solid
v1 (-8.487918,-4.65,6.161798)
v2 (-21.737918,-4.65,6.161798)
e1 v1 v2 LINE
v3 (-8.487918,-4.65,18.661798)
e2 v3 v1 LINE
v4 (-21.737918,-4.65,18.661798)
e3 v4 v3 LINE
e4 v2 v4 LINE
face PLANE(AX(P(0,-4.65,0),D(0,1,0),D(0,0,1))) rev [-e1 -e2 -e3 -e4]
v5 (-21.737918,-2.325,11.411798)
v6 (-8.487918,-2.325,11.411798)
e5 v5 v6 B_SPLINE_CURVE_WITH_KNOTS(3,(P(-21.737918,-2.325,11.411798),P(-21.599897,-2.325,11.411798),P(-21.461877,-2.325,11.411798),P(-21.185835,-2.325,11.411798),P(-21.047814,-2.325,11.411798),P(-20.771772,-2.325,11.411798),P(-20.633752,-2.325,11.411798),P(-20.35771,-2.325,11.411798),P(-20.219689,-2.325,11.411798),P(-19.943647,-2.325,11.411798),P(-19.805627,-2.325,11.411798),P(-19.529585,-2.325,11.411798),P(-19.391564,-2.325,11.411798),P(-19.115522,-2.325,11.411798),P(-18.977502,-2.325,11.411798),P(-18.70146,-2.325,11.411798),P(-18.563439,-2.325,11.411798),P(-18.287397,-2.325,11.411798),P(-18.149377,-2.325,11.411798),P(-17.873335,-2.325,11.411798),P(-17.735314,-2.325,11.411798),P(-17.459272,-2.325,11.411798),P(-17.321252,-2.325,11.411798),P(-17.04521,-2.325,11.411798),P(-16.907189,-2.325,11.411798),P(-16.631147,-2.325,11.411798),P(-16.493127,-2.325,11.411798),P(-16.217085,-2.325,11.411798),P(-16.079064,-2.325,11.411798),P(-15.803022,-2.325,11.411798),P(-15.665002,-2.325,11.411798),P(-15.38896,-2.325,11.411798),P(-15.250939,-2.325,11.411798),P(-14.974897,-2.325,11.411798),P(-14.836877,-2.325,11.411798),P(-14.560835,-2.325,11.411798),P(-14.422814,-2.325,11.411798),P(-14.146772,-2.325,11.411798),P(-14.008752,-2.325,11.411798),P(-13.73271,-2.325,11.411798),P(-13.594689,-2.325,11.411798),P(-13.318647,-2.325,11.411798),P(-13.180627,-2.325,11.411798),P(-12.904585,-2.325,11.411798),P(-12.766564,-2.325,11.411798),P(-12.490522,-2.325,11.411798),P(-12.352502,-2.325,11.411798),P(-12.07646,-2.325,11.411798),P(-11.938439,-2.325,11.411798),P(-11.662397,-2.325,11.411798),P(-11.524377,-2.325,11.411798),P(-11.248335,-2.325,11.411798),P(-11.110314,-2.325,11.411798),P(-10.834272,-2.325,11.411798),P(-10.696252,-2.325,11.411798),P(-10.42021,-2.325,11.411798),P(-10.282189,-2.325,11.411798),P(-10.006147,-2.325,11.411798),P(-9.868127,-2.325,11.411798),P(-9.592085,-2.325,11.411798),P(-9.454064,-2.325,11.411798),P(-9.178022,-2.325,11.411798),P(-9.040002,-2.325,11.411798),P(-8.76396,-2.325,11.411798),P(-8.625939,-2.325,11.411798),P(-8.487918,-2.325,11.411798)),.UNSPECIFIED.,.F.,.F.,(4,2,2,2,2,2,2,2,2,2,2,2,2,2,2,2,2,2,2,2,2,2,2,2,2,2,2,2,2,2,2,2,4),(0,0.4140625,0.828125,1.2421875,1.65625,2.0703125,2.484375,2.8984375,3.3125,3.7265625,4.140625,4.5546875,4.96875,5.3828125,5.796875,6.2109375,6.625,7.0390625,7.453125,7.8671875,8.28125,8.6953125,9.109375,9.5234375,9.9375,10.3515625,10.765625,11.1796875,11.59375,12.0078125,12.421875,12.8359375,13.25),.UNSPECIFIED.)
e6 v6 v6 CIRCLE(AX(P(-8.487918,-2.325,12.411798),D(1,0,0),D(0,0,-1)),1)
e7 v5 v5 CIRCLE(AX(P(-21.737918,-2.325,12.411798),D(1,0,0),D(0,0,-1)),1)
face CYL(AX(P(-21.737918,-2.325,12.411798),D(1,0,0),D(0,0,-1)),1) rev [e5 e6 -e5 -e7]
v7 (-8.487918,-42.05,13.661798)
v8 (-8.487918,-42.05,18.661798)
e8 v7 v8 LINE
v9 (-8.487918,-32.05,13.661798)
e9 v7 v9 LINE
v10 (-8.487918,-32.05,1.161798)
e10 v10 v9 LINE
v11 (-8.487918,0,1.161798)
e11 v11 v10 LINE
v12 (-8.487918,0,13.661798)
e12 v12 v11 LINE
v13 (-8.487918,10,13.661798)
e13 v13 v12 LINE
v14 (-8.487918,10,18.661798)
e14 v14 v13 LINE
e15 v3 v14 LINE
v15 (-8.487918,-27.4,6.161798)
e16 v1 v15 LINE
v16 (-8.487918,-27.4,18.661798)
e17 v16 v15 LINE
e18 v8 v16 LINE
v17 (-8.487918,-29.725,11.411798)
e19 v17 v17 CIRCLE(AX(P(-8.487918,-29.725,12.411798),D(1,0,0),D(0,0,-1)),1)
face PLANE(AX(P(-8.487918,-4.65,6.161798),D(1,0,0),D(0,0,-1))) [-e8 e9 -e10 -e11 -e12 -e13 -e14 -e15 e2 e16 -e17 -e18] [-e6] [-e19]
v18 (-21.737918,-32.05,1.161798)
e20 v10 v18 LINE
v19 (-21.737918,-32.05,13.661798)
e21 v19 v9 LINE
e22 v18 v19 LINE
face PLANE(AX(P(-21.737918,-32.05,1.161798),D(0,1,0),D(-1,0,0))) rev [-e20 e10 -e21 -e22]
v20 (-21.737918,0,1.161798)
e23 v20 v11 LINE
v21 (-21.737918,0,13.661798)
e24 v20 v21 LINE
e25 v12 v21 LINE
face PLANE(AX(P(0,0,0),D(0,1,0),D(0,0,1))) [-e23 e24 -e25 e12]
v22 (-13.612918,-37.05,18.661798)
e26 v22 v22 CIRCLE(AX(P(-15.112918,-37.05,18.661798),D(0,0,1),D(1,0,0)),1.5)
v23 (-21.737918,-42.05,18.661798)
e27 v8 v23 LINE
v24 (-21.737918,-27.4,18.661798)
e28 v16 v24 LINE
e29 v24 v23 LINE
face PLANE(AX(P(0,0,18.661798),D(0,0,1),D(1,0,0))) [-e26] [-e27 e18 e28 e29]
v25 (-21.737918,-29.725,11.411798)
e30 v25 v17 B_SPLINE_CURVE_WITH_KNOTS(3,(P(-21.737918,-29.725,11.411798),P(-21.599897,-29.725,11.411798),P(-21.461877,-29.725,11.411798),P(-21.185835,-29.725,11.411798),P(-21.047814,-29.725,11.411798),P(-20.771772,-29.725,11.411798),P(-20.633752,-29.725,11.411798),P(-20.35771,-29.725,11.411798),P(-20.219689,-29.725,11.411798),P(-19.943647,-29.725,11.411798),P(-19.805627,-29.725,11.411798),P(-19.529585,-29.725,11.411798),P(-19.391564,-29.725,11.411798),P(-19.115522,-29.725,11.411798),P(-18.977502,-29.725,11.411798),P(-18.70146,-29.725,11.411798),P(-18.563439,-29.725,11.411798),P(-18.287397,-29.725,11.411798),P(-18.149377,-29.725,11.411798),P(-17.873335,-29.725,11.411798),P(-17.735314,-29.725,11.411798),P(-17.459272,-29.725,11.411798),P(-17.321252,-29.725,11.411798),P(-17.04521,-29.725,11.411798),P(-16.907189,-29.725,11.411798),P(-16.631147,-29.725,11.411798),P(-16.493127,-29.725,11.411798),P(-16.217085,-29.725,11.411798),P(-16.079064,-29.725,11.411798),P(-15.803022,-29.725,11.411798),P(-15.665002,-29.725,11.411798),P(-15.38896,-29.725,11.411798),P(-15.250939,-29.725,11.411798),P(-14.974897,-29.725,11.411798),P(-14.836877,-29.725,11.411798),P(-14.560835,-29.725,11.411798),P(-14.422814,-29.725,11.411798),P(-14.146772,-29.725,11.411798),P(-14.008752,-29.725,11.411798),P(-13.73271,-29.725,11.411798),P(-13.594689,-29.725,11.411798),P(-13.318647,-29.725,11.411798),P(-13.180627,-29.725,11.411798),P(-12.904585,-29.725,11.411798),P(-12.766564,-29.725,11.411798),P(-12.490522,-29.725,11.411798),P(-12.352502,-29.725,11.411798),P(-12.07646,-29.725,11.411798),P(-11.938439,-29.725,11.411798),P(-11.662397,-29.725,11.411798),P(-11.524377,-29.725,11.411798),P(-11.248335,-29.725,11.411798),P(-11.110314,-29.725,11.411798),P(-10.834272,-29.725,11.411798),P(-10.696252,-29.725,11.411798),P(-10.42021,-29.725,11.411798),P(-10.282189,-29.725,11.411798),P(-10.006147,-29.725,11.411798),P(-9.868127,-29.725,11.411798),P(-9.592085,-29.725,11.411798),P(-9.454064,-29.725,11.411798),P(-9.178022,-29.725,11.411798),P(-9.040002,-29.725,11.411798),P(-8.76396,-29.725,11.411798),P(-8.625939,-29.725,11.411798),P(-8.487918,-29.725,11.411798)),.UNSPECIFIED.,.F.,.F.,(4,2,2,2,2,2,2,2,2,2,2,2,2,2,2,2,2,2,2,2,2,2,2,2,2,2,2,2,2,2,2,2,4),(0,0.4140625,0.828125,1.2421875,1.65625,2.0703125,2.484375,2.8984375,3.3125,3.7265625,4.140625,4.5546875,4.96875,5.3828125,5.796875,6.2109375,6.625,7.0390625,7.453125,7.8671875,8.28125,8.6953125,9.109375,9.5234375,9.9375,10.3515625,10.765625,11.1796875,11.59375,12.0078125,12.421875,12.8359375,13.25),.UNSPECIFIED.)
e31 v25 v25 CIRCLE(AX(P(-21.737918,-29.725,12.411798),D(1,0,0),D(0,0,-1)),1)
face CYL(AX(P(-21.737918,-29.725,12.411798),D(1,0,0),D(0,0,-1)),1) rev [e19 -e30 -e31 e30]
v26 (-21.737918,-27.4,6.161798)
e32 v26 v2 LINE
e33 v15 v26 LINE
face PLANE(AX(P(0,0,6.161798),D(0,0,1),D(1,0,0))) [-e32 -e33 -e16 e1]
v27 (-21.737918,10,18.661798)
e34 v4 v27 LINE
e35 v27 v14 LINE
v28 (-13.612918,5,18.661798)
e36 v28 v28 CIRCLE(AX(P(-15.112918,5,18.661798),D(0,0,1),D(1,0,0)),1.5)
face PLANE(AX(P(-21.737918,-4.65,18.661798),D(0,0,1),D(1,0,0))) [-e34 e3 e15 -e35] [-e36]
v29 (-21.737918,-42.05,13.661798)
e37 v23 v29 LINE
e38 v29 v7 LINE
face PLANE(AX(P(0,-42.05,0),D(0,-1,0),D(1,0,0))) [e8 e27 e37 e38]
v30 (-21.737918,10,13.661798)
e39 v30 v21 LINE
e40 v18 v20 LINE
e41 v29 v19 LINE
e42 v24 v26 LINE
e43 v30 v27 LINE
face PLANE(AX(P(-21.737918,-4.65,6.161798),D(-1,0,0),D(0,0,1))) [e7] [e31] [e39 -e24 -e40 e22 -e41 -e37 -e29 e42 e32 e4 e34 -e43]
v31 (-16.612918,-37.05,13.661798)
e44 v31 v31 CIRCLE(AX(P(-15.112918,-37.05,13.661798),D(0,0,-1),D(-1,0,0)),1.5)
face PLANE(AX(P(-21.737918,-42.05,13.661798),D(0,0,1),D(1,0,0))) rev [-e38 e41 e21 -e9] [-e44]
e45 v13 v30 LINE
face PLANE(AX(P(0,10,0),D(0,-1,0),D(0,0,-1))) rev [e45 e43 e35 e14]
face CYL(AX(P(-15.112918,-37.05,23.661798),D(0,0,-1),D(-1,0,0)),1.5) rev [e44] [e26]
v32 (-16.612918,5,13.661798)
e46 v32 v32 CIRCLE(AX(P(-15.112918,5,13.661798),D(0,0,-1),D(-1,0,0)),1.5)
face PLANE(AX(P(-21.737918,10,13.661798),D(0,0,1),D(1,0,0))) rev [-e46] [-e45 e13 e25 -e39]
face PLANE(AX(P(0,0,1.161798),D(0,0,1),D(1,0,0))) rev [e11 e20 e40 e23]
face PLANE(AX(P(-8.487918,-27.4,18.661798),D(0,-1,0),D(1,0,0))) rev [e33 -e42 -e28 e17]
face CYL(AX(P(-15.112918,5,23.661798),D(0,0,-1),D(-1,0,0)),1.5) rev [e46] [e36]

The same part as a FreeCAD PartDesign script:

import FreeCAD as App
import Part
import Sketcher

V = App.Vector

doc = App.newDocument("Part")
params = doc.addObject("Spreadsheet::Sheet", "Params")
for row, (alias, value) in enumerate([
    ("sketch1_height", "12.5 mm"),
    ("sketch1_width", "13.25 mm"),
    ("pad1_length", "4.65 mm"),
    ("sketch2_width", "13.25 mm"),
    ("sketch2_height", "32.05 mm"),
    ("pad2_length", "5 mm"),
    ("sketch3_width", "13.25 mm"),
    ("sketch3_height", "4.65 mm"),
    ("pad3_length", "12.5 mm"),
    ("sketch4_height", "5 mm"),
    ("sketch4_width", "13.25 mm"),
    ("pad4_length", "10 mm"),
    ("sketch5_height", "5 mm"),
    ("sketch5_width", "13.25 mm"),
    ("pad5_length", "10 mm"),
    ("sketch6_diameter", "3 mm"),
    ("pocket1_length", "10 mm"),
    ("sketch7_diameter", "2 mm"),
    ("sketch8_diameter", "2 mm"),
], start=1):
    params.set(f"A{row}", alias)
    params.set(f"B{row}", "=" + value)
    params.setAlias(f"B{row}", alias)

body = doc.addObject("PartDesign::Body", "Body")

sketch1 = body.newObject("Sketcher::SketchObject", "Sketch")
sketch1.AttachmentSupport = (doc.getObject("XZ_Plane"), [""])
sketch1.MapMode = "FlatFace"
sketch1.addGeometry([
    Part.LineSegment(V(-22, 6, 0), V(-22, 19, 0)),
    Part.LineSegment(V(-22, 19, 0), V(-8, 19, 0)),
    Part.LineSegment(V(-8, 19, 0), V(-8, 6, 0)),
    Part.LineSegment(V(-8, 6, 0), V(-22, 6, 0)),
], False)
sketch1.addConstraint([
    Sketcher.Constraint("Coincident", 0, 2, 1, 1),
    Sketcher.Constraint("Coincident", 1, 2, 2, 1),
    Sketcher.Constraint("Coincident", 2, 2, 3, 1),
    Sketcher.Constraint("Coincident", 3, 2, 0, 1),
    Sketcher.Constraint("Vertical", 0),
    Sketcher.Constraint("Horizontal", 1),
    Sketcher.Constraint("Vertical", 2),
    Sketcher.Constraint("Horizontal", 3),
    Sketcher.Constraint("DistanceY", 0, 1, 0, 2, 12.5),
    Sketcher.Constraint("DistanceX", 1, 1, 1, 2, 13.25),
    Sketcher.Constraint("DistanceX", 0, 2, -1, 1, 21.737918),
    Sketcher.Constraint("DistanceY", -1, 1, 0, 2, 18.661798),
])
sketch1.setExpression("Constraints[8]", "Params.sketch1_height")
sketch1.setExpression("Constraints[9]", "Params.sketch1_width")
pad1 = body.newObject("PartDesign::Pad", "Pad")
pad1.Profile = sketch1
pad1.setExpression("Length", "Params.pad1_length")

sketch2 = body.newObject("Sketcher::SketchObject", "Sketch001")
sketch2.AttachmentSupport = (doc.getObject("XY_Plane"), [""])
sketch2.MapMode = "FlatFace"
sketch2.AttachmentOffset = App.Placement(V(0, 0, 6.161798), App.Rotation())
sketch2.addGeometry([
    Part.LineSegment(V(-8, 0, 0), V(-8, -32, 0)),
    Part.LineSegment(V(-8, -32, 0), V(-22, -32, 0)),
    Part.LineSegment(V(-22, -32, 0), V(-22, 0, 0)),
    Part.LineSegment(V(-22, 0, 0), V(-8, 0, 0)),
], False)
sketch2.addConstraint([
    Sketcher.Constraint("Coincident", 0, 2, 1, 1),
    Sketcher.Constraint("Coincident", 1, 2, 2, 1),
    Sketcher.Constraint("Coincident", 2, 2, 3, 1),
    Sketcher.Constraint("Coincident", 3, 2, 0, 1),
    Sketcher.Constraint("Vertical", 0),
    Sketcher.Constraint("Horizontal", 1),
    Sketcher.Constraint("Vertical", 2),
    Sketcher.Constraint("Horizontal", 3),
    Sketcher.Constraint("PointOnObject", 2, 2, -1),
    Sketcher.Constraint("DistanceX", 1, 2, 1, 1, 13.25),
    Sketcher.Constraint("DistanceY", 0, 2, 0, 1, 32.05),
    Sketcher.Constraint("DistanceX", 0, 2, -1, 1, 8.487918),
])
sketch2.setExpression("Constraints[9]", "Params.sketch2_width")
sketch2.setExpression("Constraints[10]", "Params.sketch2_height")
pad2 = body.newObject("PartDesign::Pad", "Pad001")
pad2.Profile = sketch2
pad2.setExpression("Length", "Params.pad2_length")
pad2.Reversed = True

sketch3 = body.newObject("Sketcher::SketchObject", "Sketch002")
sketch3.AttachmentSupport = (doc.getObject("XY_Plane"), [""])
sketch3.MapMode = "FlatFace"
sketch3.AttachmentOffset = App.Placement(V(0, 0, 6.161798), App.Rotation())
sketch3.addGeometry([
    Part.LineSegment(V(-21.7, -27.4, 0), V(-21.7, -32, 0)),
    Part.LineSegment(V(-21.7, -32, 0), V(-8.5, -32, 0)),
    Part.LineSegment(V(-8.5, -32, 0), V(-8.5, -27.4, 0)),
    Part.LineSegment(V(-8.5, -27.4, 0), V(-21.7, -27.4, 0)),
], False)
sketch3.addConstraint([
    Sketcher.Constraint("Coincident", 0, 2, 1, 1),
    Sketcher.Constraint("Coincident", 1, 2, 2, 1),
    Sketcher.Constraint("Coincident", 2, 2, 3, 1),
    Sketcher.Constraint("Coincident", 3, 2, 0, 1),
    Sketcher.Constraint("Vertical", 0),
    Sketcher.Constraint("Horizontal", 1),
    Sketcher.Constraint("Vertical", 2),
    Sketcher.Constraint("Horizontal", 3),
    Sketcher.Constraint("DistanceX", 1, 1, 1, 2, 13.25),
    Sketcher.Constraint("DistanceY", 0, 2, 0, 1, 4.65),
    Sketcher.Constraint("DistanceY", 2, 2, -1, 1, 27.4),
    Sketcher.Constraint("DistanceX", 0, 2, -1, 1, 21.737918),
])
sketch3.setExpression("Constraints[8]", "Params.sketch3_width")
sketch3.setExpression("Constraints[9]", "Params.sketch3_height")
pad3 = body.newObject("PartDesign::Pad", "Pad002")
pad3.Profile = sketch3
pad3.setExpression("Length", "Params.pad3_length")

sketch4 = body.newObject("Sketcher::SketchObject", "Sketch003")
sketch4.AttachmentSupport = (doc.getObject("XZ_Plane"), [""])
sketch4.MapMode = "FlatFace"
sketch4.AttachmentOffset = App.Placement(V(0, 0, 32.05), App.Rotation())
sketch4.addGeometry([
    Part.LineSegment(V(-8, 14, 0), V(-8, 19, 0)),
    Part.LineSegment(V(-8, 19, 0), V(-22, 19, 0)),
    Part.LineSegment(V(-22, 19, 0), V(-22, 14, 0)),
    Part.LineSegment(V(-22, 14, 0), V(-8, 14, 0)),
], False)
sketch4.addConstraint([
    Sketcher.Constraint("Coincident", 0, 2, 1, 1),
    Sketcher.Constraint("Coincident", 1, 2, 2, 1),
    Sketcher.Constraint("Coincident", 2, 2, 3, 1),
    Sketcher.Constraint("Coincident", 3, 2, 0, 1),
    Sketcher.Constraint("Vertical", 0),
    Sketcher.Constraint("Horizontal", 1),
    Sketcher.Constraint("Vertical", 2),
    Sketcher.Constraint("Horizontal", 3),
    Sketcher.Constraint("DistanceY", 0, 1, 0, 2, 5.0),
    Sketcher.Constraint("DistanceX", 1, 2, 1, 1, 13.25),
    Sketcher.Constraint("DistanceX", 0, 2, -1, 1, 8.487918),
    Sketcher.Constraint("DistanceY", -1, 1, 0, 2, 18.661798),
])
sketch4.setExpression("Constraints[8]", "Params.sketch4_height")
sketch4.setExpression("Constraints[9]", "Params.sketch4_width")
pad4 = body.newObject("PartDesign::Pad", "Pad003")
pad4.Profile = sketch4
pad4.setExpression("Length", "Params.pad4_length")

sketch5 = body.newObject("Sketcher::SketchObject", "Sketch004")
sketch5.AttachmentSupport = (doc.getObject("XZ_Plane"), [""])
sketch5.MapMode = "FlatFace"
sketch5.addGeometry([
    Part.LineSegment(V(-22, 14, 0), V(-22, 19, 0)),
    Part.LineSegment(V(-22, 19, 0), V(-8, 19, 0)),
    Part.LineSegment(V(-8, 19, 0), V(-8, 14, 0)),
    Part.LineSegment(V(-8, 14, 0), V(-22, 14, 0)),
], False)
sketch5.addConstraint([
    Sketcher.Constraint("Coincident", 0, 2, 1, 1),
    Sketcher.Constraint("Coincident", 1, 2, 2, 1),
    Sketcher.Constraint("Coincident", 2, 2, 3, 1),
    Sketcher.Constraint("Coincident", 3, 2, 0, 1),
    Sketcher.Constraint("Vertical", 0),
    Sketcher.Constraint("Horizontal", 1),
    Sketcher.Constraint("Vertical", 2),
    Sketcher.Constraint("Horizontal", 3),
    Sketcher.Constraint("DistanceY", 0, 1, 0, 2, 5.0),
    Sketcher.Constraint("DistanceX", 1, 1, 1, 2, 13.25),
    Sketcher.Constraint("DistanceX", 0, 2, -1, 1, 21.737918),
    Sketcher.Constraint("DistanceY", -1, 1, 0, 2, 18.661798),
])
sketch5.setExpression("Constraints[8]", "Params.sketch5_height")
sketch5.setExpression("Constraints[9]", "Params.sketch5_width")
pad5 = body.newObject("PartDesign::Pad", "Pad004")
pad5.Profile = sketch5
pad5.setExpression("Length", "Params.pad5_length")
pad5.Reversed = True

sketch6 = body.newObject("Sketcher::SketchObject", "Sketch005")
sketch6.AttachmentSupport = (doc.getObject("XY_Plane"), [""])
sketch6.MapMode = "FlatFace"
sketch6.AttachmentOffset = App.Placement(V(0, 0, 13.661798), App.Rotation())
sketch6.addGeometry([
    Part.Circle(V(-15.1, 5, 0), V(0, 0, 1), 1.5),
    Part.Circle(V(-15.1, -37, 0), V(0, 0, 1), 1.5),
], False)
sketch6.addConstraint([
    Sketcher.Constraint("Equal", 0, 1),
    Sketcher.Constraint("Vertical", 0, 3, 1, 3),
    Sketcher.Constraint("Diameter", 0, 3.0),
    Sketcher.Constraint("DistanceY", -1, 1, 0, 3, 5.0),
    Sketcher.Constraint("DistanceY", 1, 3, -1, 1, 37.05),
    Sketcher.Constraint("DistanceX", 0, 3, -1, 1, 15.112918),
])
sketch6.setExpression("Constraints[2]", "Params.sketch6_diameter")
pocket1 = body.newObject("PartDesign::Pocket", "Pocket")
pocket1.Profile = sketch6
pocket1.setExpression("Length", "Params.pocket1_length")
pocket1.Reversed = True

sketch7 = body.newObject("Sketcher::SketchObject", "Sketch006")
sketch7.AttachmentSupport = (doc.getObject("YZ_Plane"), [""])
sketch7.MapMode = "FlatFace"
sketch7.AttachmentOffset = App.Placement(V(0, 0, -8.487918), App.Rotation())
sketch7.addGeometry(Part.Circle(V(-2.3, 12.4, 0), V(0, 0, 1), 1), False)
sketch7.addConstraint([
    Sketcher.Constraint("Diameter", 0, 2.0),
    Sketcher.Constraint("DistanceX", 0, 3, -1, 1, 2.325),
    Sketcher.Constraint("DistanceY", -1, 1, 0, 3, 12.411798),
])
sketch7.setExpression("Constraints[0]", "Params.sketch7_diameter")
pocket2 = body.newObject("PartDesign::Pocket", "Pocket001")
pocket2.Profile = sketch7
pocket2.Type = "ThroughAll"

sketch8 = body.newObject("Sketcher::SketchObject", "Sketch007")
sketch8.AttachmentSupport = (doc.getObject("YZ_Plane"), [""])
sketch8.MapMode = "FlatFace"
sketch8.AttachmentOffset = App.Placement(V(0, 0, -8.487918), App.Rotation())
sketch8.addGeometry(Part.Circle(V(-29.7, 12.4, 0), V(0, 0, 1), 1), False)
sketch8.addConstraint([
    Sketcher.Constraint("Diameter", 0, 2.0),
    Sketcher.Constraint("DistanceX", 0, 3, -1, 1, 29.725),
    Sketcher.Constraint("DistanceY", -1, 1, 0, 3, 12.411798),
])
sketch8.setExpression("Constraints[0]", "Params.sketch8_diameter")
pocket3 = body.newObject("PartDesign::Pocket", "Pocket002")
pocket3.Profile = sketch8
pocket3.Type = "ThroughAll"

doc.recompute()
